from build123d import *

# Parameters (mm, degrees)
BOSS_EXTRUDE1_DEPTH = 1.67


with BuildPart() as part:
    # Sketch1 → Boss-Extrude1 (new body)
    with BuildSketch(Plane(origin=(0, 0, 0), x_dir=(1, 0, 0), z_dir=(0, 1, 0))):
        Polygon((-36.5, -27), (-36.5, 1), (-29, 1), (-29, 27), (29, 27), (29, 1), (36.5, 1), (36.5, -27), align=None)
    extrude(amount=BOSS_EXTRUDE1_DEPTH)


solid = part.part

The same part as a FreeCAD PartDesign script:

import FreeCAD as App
import Part
import Sketcher
from FreeCAD import Vector

doc = App.newDocument("Part")
body = doc.addObject("PartDesign::Body", "Body")

sketch1 = doc.addObject("Sketcher::SketchObject", "Sketch")
body.addObject(sketch1)
sketch1.AttachmentSupport = (doc.XZ_Plane, [""])
sketch1.MapMode = "FlatFace"
sketch1.addGeometry([
    Part.LineSegment(Vector(-36, -1, 0), Vector(-36, 27, 0)),
    Part.LineSegment(Vector(-36, 27, 0), Vector(36, 27, 0)),
    Part.LineSegment(Vector(36, 27, 0), Vector(36, -1, 0)),
    Part.LineSegment(Vector(36, -1, 0), Vector(29, -1, 0)),
    Part.LineSegment(Vector(29, -1, 0), Vector(29, -27, 0)),
    Part.LineSegment(Vector(29, -27, 0), Vector(-29, -27, 0)),
    Part.LineSegment(Vector(-29, -27, 0), Vector(-29, -1, 0)),
    Part.LineSegment(Vector(-29, -1, 0), Vector(-36, -1, 0)),
], False)
sketch1.addConstraint([
    Sketcher.Constraint("Coincident", 0, 2, 1, 1),
    Sketcher.Constraint("Coincident", 1, 2, 2, 1),
    Sketcher.Constraint("Coincident", 2, 2, 3, 1),
    Sketcher.Constraint("Coincident", 3, 2, 4, 1),
    Sketcher.Constraint("Coincident", 4, 2, 5, 1),
    Sketcher.Constraint("Coincident", 5, 2, 6, 1),
    Sketcher.Constraint("Coincident", 6, 2, 7, 1),
    Sketcher.Constraint("Coincident", 7, 2, 0, 1),
    Sketcher.Constraint("Vertical", 0),
    Sketcher.Constraint("Horizontal", 1),
    Sketcher.Constraint("Vertical", 2),
    Sketcher.Constraint("Horizontal", 3),
    Sketcher.Constraint("Vertical", 4),
    Sketcher.Constraint("Horizontal", 5),
    Sketcher.Constraint("Vertical", 6),
    Sketcher.Constraint("Horizontal", 7),
    Sketcher.Constraint("Symmetric", 3, 2, 6, 2, -2),
    Sketcher.Constraint("Equal", 3, 7),
    Sketcher.Constraint("DistanceX", 1, 1, 1, 2, 73.0),
    Sketcher.Constraint("DistanceX", 5, 2, 5, 1, 58.0),
    Sketcher.Constraint("DistanceY", 0, 1, 0, 2, 28.0),
    Sketcher.Constraint("DistanceY", 4, 2, 4, 1, 26.0),
    Sketcher.Constraint("DistanceY", -1, 1, 0, 2, 27.0),
])
pad1 = doc.addObject("PartDesign::Pad", "Pad")
body.addObject(pad1)
pad1.Profile = sketch1
pad1.Length = 1.67
pad1.Reversed = True

doc.recompute()
